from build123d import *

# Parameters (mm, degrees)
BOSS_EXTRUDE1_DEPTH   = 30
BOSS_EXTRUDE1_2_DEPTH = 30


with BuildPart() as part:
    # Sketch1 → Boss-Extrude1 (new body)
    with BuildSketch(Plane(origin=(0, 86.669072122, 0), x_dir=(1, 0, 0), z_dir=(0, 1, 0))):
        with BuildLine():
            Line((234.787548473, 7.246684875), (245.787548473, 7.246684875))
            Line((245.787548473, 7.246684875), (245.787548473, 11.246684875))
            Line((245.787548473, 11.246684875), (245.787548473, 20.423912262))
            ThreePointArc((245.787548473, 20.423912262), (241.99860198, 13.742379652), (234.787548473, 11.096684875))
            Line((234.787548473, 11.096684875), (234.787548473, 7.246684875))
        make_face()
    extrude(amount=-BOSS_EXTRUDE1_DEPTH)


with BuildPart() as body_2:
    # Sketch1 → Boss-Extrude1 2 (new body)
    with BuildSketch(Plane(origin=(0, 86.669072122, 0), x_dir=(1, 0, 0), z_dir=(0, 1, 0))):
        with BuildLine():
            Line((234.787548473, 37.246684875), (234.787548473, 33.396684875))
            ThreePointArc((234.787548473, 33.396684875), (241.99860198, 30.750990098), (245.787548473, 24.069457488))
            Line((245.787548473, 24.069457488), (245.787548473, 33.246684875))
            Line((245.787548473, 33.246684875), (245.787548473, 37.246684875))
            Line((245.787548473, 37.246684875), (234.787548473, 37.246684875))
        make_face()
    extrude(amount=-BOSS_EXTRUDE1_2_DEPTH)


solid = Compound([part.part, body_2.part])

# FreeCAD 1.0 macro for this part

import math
import FreeCAD as App
import Part
import Sketcher
from FreeCAD import Vector
Q = App.Units.Quantity

doc = App.newDocument("Part")
body = doc.addObject("PartDesign::Body", "Body")

sketch1 = doc.addObject("Sketcher::SketchObject", "Sketch")
body.addObject(sketch1)
sketch1.AttachmentSupport = (doc.XZ_Plane, [""])
sketch1.MapMode = "FlatFace"
sketch1.AttachmentOffset = App.Placement(Vector(0, 0, -86.669072), App.Rotation())
sketch1.addGeometry([
    Part.LineSegment(Vector(234.8, -7.2, 0), Vector(245.8, -7.2, 0)),
    Part.LineSegment(Vector(245.8, -7.2, 0), Vector(245.8, -20.4, 0)),
    Part.ArcOfCircle(Part.Circle(Vector(234.8, -22.2, 0), Vector(0, 0, 1), 11.1), math.radians(9), math.radians(90)),
    Part.LineSegment(Vector(234.8, -11.1, 0), Vector(234.8, -7.2, 0)),
], False)
sketch1.addConstraint([
    Sketcher.Constraint("Coincident", 0, 2, 1, 1),
    Sketcher.Constraint("Coincident", 1, 2, 2, 1),
    Sketcher.Constraint("Coincident", 2, 2, 3, 1),
    Sketcher.Constraint("Coincident", 3, 2, 0, 1),
    Sketcher.Constraint("Horizontal", 0),
    Sketcher.Constraint("Vertical", 1),
    Sketcher.Constraint("Vertical", 3),
    Sketcher.Constraint("DistanceX", 0, 1, 0, 2, Q("11 mm")),
    Sketcher.Constraint("Radius", 2, Q("11.15 mm")),
    Sketcher.Constraint("DistanceX", 2, 3, 0, 2, Q("11 mm")),
    Sketcher.Constraint("DistanceY", 2, 3, 0, 2, Q("15 mm")),
    Sketcher.Constraint("DistanceX", -1, 1, 2, 3, Q("234.787548 mm")),
    Sketcher.Constraint("DistanceY", 2, 3, -1, 1, Q("22.246685 mm")),
])
pad1 = doc.addObject("PartDesign::Pad", "Pad")
body.addObject(pad1)
pad1.Profile = sketch1
pad1.Length = 30
body2 = doc.addObject("PartDesign::Body", "Body001")

sketch2 = doc.addObject("Sketcher::SketchObject", "Sketch001")
body2.addObject(sketch2)
sketch2.AttachmentSupport = (doc.getObject("XZ_Plane001"), [""])
sketch2.MapMode = "FlatFace"
sketch2.AttachmentOffset = App.Placement(Vector(0, 0, -86.669072), App.Rotation())
sketch2.addGeometry([
    Part.LineSegment(Vector(234.8, -37.2, 0), Vector(234.8, -33.4, 0)),
    Part.ArcOfCircle(Part.Circle(Vector(234.8, -22.2, 0), Vector(0, 0, 1), 11.1), math.radians(-90), math.radians(-9)),
    Part.LineSegment(Vector(245.8, -24.1, 0), Vector(245.8, -37.2, 0)),
    Part.LineSegment(Vector(245.8, -37.2, 0), Vector(234.8, -37.2, 0)),
], False)
sketch2.addConstraint([
    Sketcher.Constraint("Coincident", 0, 2, 1, 1),
    Sketcher.Constraint("Coincident", 1, 2, 2, 1),
    Sketcher.Constraint("Coincident", 2, 2, 3, 1),
    Sketcher.Constraint("Coincident", 3, 2, 0, 1),
    Sketcher.Constraint("Vertical", 0),
    Sketcher.Constraint("Vertical", 2),
    Sketcher.Constraint("Horizontal", 3),
    Sketcher.Constraint("Vertical", 1, 3, 0, 2),
    Sketcher.Constraint("DistanceX", 3, 2, 3, 1, Q("11 mm")),
    Sketcher.Constraint("Radius", 1, Q("11.15 mm")),
    Sketcher.Constraint("DistanceY", 2, 2, 1, 3, Q("15 mm")),
    Sketcher.Constraint("DistanceX", -1, 1, 1, 3, Q("234.787548 mm")),
    Sketcher.Constraint("DistanceY", 1, 3, -1, 1, Q("22.246685 mm")),
])
pad2 = doc.addObject("PartDesign::Pad", "Pad001")
body2.addObject(pad2)
pad2.Profile = sketch2
pad2.Length = 30

doc.recompute()
